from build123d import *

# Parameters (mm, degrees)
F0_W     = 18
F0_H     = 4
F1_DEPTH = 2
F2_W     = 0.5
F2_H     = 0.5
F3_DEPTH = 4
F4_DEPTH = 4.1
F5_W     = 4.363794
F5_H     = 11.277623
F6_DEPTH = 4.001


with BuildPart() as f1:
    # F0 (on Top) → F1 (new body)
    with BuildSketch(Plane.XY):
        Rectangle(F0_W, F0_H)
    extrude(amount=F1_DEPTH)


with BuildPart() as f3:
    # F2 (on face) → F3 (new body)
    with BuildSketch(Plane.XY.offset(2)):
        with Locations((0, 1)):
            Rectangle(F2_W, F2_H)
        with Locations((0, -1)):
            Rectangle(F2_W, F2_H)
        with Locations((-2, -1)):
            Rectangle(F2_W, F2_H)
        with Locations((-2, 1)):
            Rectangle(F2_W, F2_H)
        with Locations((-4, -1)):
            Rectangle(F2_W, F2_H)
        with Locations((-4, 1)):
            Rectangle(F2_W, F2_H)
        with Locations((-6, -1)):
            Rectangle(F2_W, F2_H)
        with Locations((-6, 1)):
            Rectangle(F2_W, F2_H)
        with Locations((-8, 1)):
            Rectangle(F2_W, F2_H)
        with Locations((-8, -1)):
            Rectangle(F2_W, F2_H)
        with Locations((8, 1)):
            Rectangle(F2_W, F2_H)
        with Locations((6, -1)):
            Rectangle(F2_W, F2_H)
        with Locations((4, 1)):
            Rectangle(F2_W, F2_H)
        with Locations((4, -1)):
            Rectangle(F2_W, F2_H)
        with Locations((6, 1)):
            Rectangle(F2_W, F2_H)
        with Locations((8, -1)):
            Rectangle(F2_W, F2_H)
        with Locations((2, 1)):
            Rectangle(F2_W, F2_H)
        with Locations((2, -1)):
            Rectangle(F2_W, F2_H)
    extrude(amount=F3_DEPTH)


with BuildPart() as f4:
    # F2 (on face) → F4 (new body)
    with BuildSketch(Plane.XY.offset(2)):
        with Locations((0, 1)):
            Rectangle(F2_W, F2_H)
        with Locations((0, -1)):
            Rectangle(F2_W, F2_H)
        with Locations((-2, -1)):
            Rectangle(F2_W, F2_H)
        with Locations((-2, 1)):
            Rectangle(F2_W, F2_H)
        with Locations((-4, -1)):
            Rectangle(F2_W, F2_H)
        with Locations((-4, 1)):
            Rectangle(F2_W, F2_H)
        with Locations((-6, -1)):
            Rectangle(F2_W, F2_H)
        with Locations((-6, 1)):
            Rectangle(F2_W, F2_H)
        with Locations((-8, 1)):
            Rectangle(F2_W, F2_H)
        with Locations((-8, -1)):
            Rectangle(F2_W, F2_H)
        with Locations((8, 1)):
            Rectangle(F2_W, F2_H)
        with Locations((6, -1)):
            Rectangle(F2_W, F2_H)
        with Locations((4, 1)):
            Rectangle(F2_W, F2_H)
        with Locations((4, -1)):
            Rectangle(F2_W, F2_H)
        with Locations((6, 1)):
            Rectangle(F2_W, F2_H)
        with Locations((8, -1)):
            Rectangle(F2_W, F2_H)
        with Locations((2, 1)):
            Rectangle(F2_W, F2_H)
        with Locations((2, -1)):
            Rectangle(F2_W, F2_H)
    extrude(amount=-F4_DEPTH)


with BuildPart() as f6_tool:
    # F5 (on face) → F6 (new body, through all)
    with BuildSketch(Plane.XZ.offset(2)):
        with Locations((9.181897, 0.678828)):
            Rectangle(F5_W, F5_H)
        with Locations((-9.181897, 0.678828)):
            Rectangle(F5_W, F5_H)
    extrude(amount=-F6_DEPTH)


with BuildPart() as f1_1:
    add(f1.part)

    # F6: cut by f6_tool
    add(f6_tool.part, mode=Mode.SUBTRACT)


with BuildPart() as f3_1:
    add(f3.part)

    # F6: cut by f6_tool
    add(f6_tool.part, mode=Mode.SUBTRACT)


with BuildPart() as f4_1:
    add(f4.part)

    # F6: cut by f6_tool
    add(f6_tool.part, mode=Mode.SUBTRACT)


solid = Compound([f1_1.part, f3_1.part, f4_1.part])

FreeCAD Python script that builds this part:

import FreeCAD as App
import Part
import Sketcher

doc = App.newDocument("Part")
params = doc.addObject("Spreadsheet::Sheet", "Params")
for row, (alias, value) in enumerate([
    ("sketch1_width", "18 mm"),
    ("sketch1_height", "4 mm"),
    ("pad1_length", "2 mm"),
    ("sketch2_width", "0.5 mm"),
    ("pad2_length", "4 mm"),
    ("sketch3_width", "0.5 mm"),
    ("pad3_length", "4.1 mm"),
    ("pad4_length", "4.001 mm"),
], start=1):
    params.set(f"A{row}", alias)
    params.set(f"B{row}", "=" + value)
    params.setAlias(f"B{row}", alias)

body = doc.addObject("PartDesign::Body", "Body")

# Sketch on XY plane
sketch1 = doc.addObject("Sketcher::SketchObject", "Sketch")
body.addObject(sketch1)
sketch1.AttachmentSupport = (doc.XY_Plane, [""])
sketch1.MapMode = "FlatFace"
sketch1.addGeometry([
    Part.LineSegment(App.Vector(-9, 2, 0), App.Vector(-9, -2, 0)),
    Part.LineSegment(App.Vector(-9, -2, 0), App.Vector(9, -2, 0)),
    Part.LineSegment(App.Vector(9, -2, 0), App.Vector(9, 2, 0)),
    Part.LineSegment(App.Vector(9, 2, 0), App.Vector(-9, 2, 0)),
], False)
sketch1.addConstraint([
    Sketcher.Constraint("Coincident", 0, 2, 1, 1),
    Sketcher.Constraint("Coincident", 1, 2, 2, 1),
    Sketcher.Constraint("Coincident", 2, 2, 3, 1),
    Sketcher.Constraint("Coincident", 3, 2, 0, 1),
    Sketcher.Constraint("Vertical", 0),
    Sketcher.Constraint("Horizontal", 1),
    Sketcher.Constraint("Vertical", 2),
    Sketcher.Constraint("Horizontal", 3),
    Sketcher.Constraint("Symmetric", 0, 2, 2, 2, -1, 1),
    Sketcher.Constraint("DistanceX", 1, 1, 1, 2, 18.0),
    Sketcher.Constraint("DistanceY", 0, 2, 0, 1, 4.0),
])
sketch1.setExpression("Constraints[9]", "Params.sketch1_width")
sketch1.setExpression("Constraints[10]", "Params.sketch1_height")
pad1 = doc.addObject("PartDesign::Pad", "Pad")
body.addObject(pad1)
pad1.Profile = sketch1
pad1.setExpression("Length", "Params.pad1_length")
body2 = doc.addObject("PartDesign::Body", "Body001")
body2.AllowCompound = True

# Sketch on XY plane
sketch2 = doc.addObject("Sketcher::SketchObject", "Sketch001")
body2.addObject(sketch2)
sketch2.AttachmentSupport = (doc.getObject("XY_Plane001"), [""])
sketch2.MapMode = "FlatFace"
sketch2.AttachmentOffset = App.Placement(App.Vector(0, 0, 2), App.Rotation())
sketch2.addGeometry([
    Part.LineSegment(App.Vector(-0.2, 1.2, 0), App.Vector(-0.2, 0.8, 0)),  # 0
    Part.LineSegment(App.Vector(-0.2, 0.8, 0), App.Vector(0.2, 0.8, 0)),  # 1
    Part.LineSegment(App.Vector(0.2, 0.8, 0), App.Vector(0.2, 1.2, 0)),  # 2
    Part.LineSegment(App.Vector(0.2, 1.2, 0), App.Vector(-0.2, 1.2, 0)),  # 3
    Part.LineSegment(App.Vector(-0.2, -0.8, 0), App.Vector(-0.2, -1.2, 0)),  # 4
    Part.LineSegment(App.Vector(-0.2, -1.2, 0), App.Vector(0.2, -1.2, 0)),  # 5
    Part.LineSegment(App.Vector(0.2, -1.2, 0), App.Vector(0.2, -0.8, 0)),  # 6
    Part.LineSegment(App.Vector(0.2, -0.8, 0), App.Vector(-0.2, -0.8, 0)),  # 7
    Part.LineSegment(App.Vector(-2.2, -0.8, 0), App.Vector(-2.2, -1.2, 0)),  # 8
    Part.LineSegment(App.Vector(-2.2, -1.2, 0), App.Vector(-1.8, -1.2, 0)),  # 9
    Part.LineSegment(App.Vector(-1.8, -1.2, 0), App.Vector(-1.8, -0.8, 0)),  # 10
    Part.LineSegment(App.Vector(-1.8, -0.8, 0), App.Vector(-2.2, -0.8, 0)),  # 11
    Part.LineSegment(App.Vector(-2.2, 1.2, 0), App.Vector(-2.2, 0.8, 0)),  # 12
    Part.LineSegment(App.Vector(-2.2, 0.8, 0), App.Vector(-1.8, 0.8, 0)),  # 13
    Part.LineSegment(App.Vector(-1.8, 0.8, 0), App.Vector(-1.8, 1.2, 0)),  # 14
    Part.LineSegment(App.Vector(-1.8, 1.2, 0), App.Vector(-2.2, 1.2, 0)),  # 15
    Part.LineSegment(App.Vector(-4.2, -0.8, 0), App.Vector(-4.2, -1.2, 0)),  # 16
    Part.LineSegment(App.Vector(-4.2, -1.2, 0), App.Vector(-3.8, -1.2, 0)),  # 17
    Part.LineSegment(App.Vector(-3.8, -1.2, 0), App.Vector(-3.8, -0.8, 0)),  # 18
    Part.LineSegment(App.Vector(-3.8, -0.8, 0), App.Vector(-4.2, -0.8, 0)),  # 19
    Part.LineSegment(App.Vector(-4.2, 1.2, 0), App.Vector(-4.2, 0.8, 0)),  # 20
    Part.LineSegment(App.Vector(-4.2, 0.8, 0), App.Vector(-3.8, 0.8, 0)),  # 21
    Part.LineSegment(App.Vector(-3.8, 0.8, 0), App.Vector(-3.8, 1.2, 0)),  # 22
    Part.LineSegment(App.Vector(-3.8, 1.2, 0), App.Vector(-4.2, 1.2, 0)),  # 23
    Part.LineSegment(App.Vector(-6.2, -0.8, 0), App.Vector(-6.2, -1.2, 0)),  # 24
    Part.LineSegment(App.Vector(-6.2, -1.2, 0), App.Vector(-5.8, -1.2, 0)),  # 25
    Part.LineSegment(App.Vector(-5.8, -1.2, 0), App.Vector(-5.8, -0.8, 0)),  # 26
    Part.LineSegment(App.Vector(-5.8, -0.8, 0), App.Vector(-6.2, -0.8, 0)),  # 27
    Part.LineSegment(App.Vector(-6.2, 1.2, 0), App.Vector(-6.2, 0.8, 0)),  # 28
    Part.LineSegment(App.Vector(-6.2, 0.8, 0), App.Vector(-5.8, 0.8, 0)),  # 29
    Part.LineSegment(App.Vector(-5.8, 0.8, 0), App.Vector(-5.8, 1.2, 0)),  # 30
    Part.LineSegment(App.Vector(-5.8, 1.2, 0), App.Vector(-6.2, 1.2, 0)),  # 31
    Part.LineSegment(App.Vector(-8.2, 1.2, 0), App.Vector(-8.2, 0.8, 0)),  # 32
    Part.LineSegment(App.Vector(-8.2, 0.8, 0), App.Vector(-7.8, 0.8, 0)),  # 33
    Part.LineSegment(App.Vector(-7.8, 0.8, 0), App.Vector(-7.8, 1.2, 0)),  # 34
    Part.LineSegment(App.Vector(-7.8, 1.2, 0), App.Vector(-8.2, 1.2, 0)),  # 35
    Part.LineSegment(App.Vector(-8.2, -0.8, 0), App.Vector(-8.2, -1.2, 0)),  # 36
    Part.LineSegment(App.Vector(-8.2, -1.2, 0), App.Vector(-7.8, -1.2, 0)),  # 37
    Part.LineSegment(App.Vector(-7.8, -1.2, 0), App.Vector(-7.8, -0.8, 0)),  # 38
    Part.LineSegment(App.Vector(-7.8, -0.8, 0), App.Vector(-8.2, -0.8, 0)),  # 39
    Part.LineSegment(App.Vector(7.8, 1.2, 0), App.Vector(7.8, 0.8, 0)),  # 40
    Part.LineSegment(App.Vector(7.8, 0.8, 0), App.Vector(8.2, 0.8, 0)),  # 41
    Part.LineSegment(App.Vector(8.2, 0.8, 0), App.Vector(8.2, 1.2, 0)),  # 42
    Part.LineSegment(App.Vector(8.2, 1.2, 0), App.Vector(7.8, 1.2, 0)),  # 43
    Part.LineSegment(App.Vector(5.8, -0.8, 0), App.Vector(5.8, -1.2, 0)),  # 44
    Part.LineSegment(App.Vector(5.8, -1.2, 0), App.Vector(6.2, -1.2, 0)),  # 45
    Part.LineSegment(App.Vector(6.2, -1.2, 0), App.Vector(6.2, -0.8, 0)),  # 46
    Part.LineSegment(App.Vector(6.2, -0.8, 0), App.Vector(5.8, -0.8, 0)),  # 47
    Part.LineSegment(App.Vector(3.8, 1.2, 0), App.Vector(3.8, 0.8, 0)),  # 48
    Part.LineSegment(App.Vector(3.8, 0.8, 0), App.Vector(4.2, 0.8, 0)),  # 49
    Part.LineSegment(App.Vector(4.2, 0.8, 0), App.Vector(4.2, 1.2, 0)),  # 50
    Part.LineSegment(App.Vector(4.2, 1.2, 0), App.Vector(3.8, 1.2, 0)),  # 51
    Part.LineSegment(App.Vector(3.8, -0.8, 0), App.Vector(3.8, -1.2, 0)),  # 52
    Part.LineSegment(App.Vector(3.8, -1.2, 0), App.Vector(4.2, -1.2, 0)),  # 53
    Part.LineSegment(App.Vector(4.2, -1.2, 0), App.Vector(4.2, -0.8, 0)),  # 54
    Part.LineSegment(App.Vector(4.2, -0.8, 0), App.Vector(3.8, -0.8, 0)),  # 55
    Part.LineSegment(App.Vector(5.8, 1.2, 0), App.Vector(5.8, 0.8, 0)),  # 56
    Part.LineSegment(App.Vector(5.8, 0.8, 0), App.Vector(6.2, 0.8, 0)),  # 57
    Part.LineSegment(App.Vector(6.2, 0.8, 0), App.Vector(6.2, 1.2, 0)),  # 58
    Part.LineSegment(App.Vector(6.2, 1.2, 0), App.Vector(5.8, 1.2, 0)),  # 59
    Part.LineSegment(App.Vector(7.8, -0.8, 0), App.Vector(7.8, -1.2, 0)),  # 60
    Part.LineSegment(App.Vector(7.8, -1.2, 0), App.Vector(8.2, -1.2, 0)),  # 61
    Part.LineSegment(App.Vector(8.2, -1.2, 0), App.Vector(8.2, -0.8, 0)),  # 62
    Part.LineSegment(App.Vector(8.2, -0.8, 0), App.Vector(7.8, -0.8, 0)),  # 63
    Part.LineSegment(App.Vector(1.8, 1.2, 0), App.Vector(1.8, 0.8, 0)),  # 64
    Part.LineSegment(App.Vector(1.8, 0.8, 0), App.Vector(2.2, 0.8, 0)),  # 65
    Part.LineSegment(App.Vector(2.2, 0.8, 0), App.Vector(2.2, 1.2, 0)),  # 66
    Part.LineSegment(App.Vector(2.2, 1.2, 0), App.Vector(1.8, 1.2, 0)),  # 67
    Part.LineSegment(App.Vector(1.8, -0.8, 0), App.Vector(1.8, -1.2, 0)),  # 68
    Part.LineSegment(App.Vector(1.8, -1.2, 0), App.Vector(2.2, -1.2, 0)),  # 69
    Part.LineSegment(App.Vector(2.2, -1.2, 0), App.Vector(2.2, -0.8, 0)),  # 70
    Part.LineSegment(App.Vector(2.2, -0.8, 0), App.Vector(1.8, -0.8, 0)),  # 71
], False)
sketch2.addConstraint([
    Sketcher.Constraint("Coincident", 0, 2, 1, 1),
    Sketcher.Constraint("Coincident", 1, 2, 2, 1),
    Sketcher.Constraint("Coincident", 2, 2, 3, 1),
    Sketcher.Constraint("Coincident", 3, 2, 0, 1),
    Sketcher.Constraint("Coincident", 4, 2, 5, 1),
    Sketcher.Constraint("Coincident", 5, 2, 6, 1),
    Sketcher.Constraint("Coincident", 6, 2, 7, 1),
    Sketcher.Constraint("Coincident", 7, 2, 4, 1),
    Sketcher.Constraint("Coincident", 8, 2, 9, 1),
    Sketcher.Constraint("Coincident", 9, 2, 10, 1),
    Sketcher.Constraint("Coincident", 10, 2, 11, 1),
    Sketcher.Constraint("Coincident", 11, 2, 8, 1),
    Sketcher.Constraint("Coincident", 12, 2, 13, 1),
    Sketcher.Constraint("Coincident", 13, 2, 14, 1),
    Sketcher.Constraint("Coincident", 14, 2, 15, 1),
    Sketcher.Constraint("Coincident", 15, 2, 12, 1),
    Sketcher.Constraint("Coincident", 16, 2, 17, 1),
    Sketcher.Constraint("Coincident", 17, 2, 18, 1),
    Sketcher.Constraint("Coincident", 18, 2, 19, 1),
    Sketcher.Constraint("Coincident", 19, 2, 16, 1),
    Sketcher.Constraint("Coincident", 20, 2, 21, 1),
    Sketcher.Constraint("Coincident", 21, 2, 22, 1),
    Sketcher.Constraint("Coincident", 22, 2, 23, 1),
    Sketcher.Constraint("Coincident", 23, 2, 20, 1),
    Sketcher.Constraint("Coincident", 24, 2, 25, 1),
    Sketcher.Constraint("Coincident", 25, 2, 26, 1),
    Sketcher.Constraint("Coincident", 26, 2, 27, 1),
    Sketcher.Constraint("Coincident", 27, 2, 24, 1),
    Sketcher.Constraint("Coincident", 28, 2, 29, 1),
    Sketcher.Constraint("Coincident", 29, 2, 30, 1),
    Sketcher.Constraint("Coincident", 30, 2, 31, 1),
    Sketcher.Constraint("Coincident", 31, 2, 28, 1),
    Sketcher.Constraint("Coincident", 32, 2, 33, 1),
    Sketcher.Constraint("Coincident", 33, 2, 34, 1),
    Sketcher.Constraint("Coincident", 34, 2, 35, 1),
    Sketcher.Constraint("Coincident", 35, 2, 32, 1),
    Sketcher.Constraint("Coincident", 36, 2, 37, 1),
    Sketcher.Constraint("Coincident", 37, 2, 38, 1),
    Sketcher.Constraint("Coincident", 38, 2, 39, 1),
    Sketcher.Constraint("Coincident", 39, 2, 36, 1),
    Sketcher.Constraint("Coincident", 40, 2, 41, 1),
    Sketcher.Constraint("Coincident", 41, 2, 42, 1),
    Sketcher.Constraint("Coincident", 42, 2, 43, 1),
    Sketcher.Constraint("Coincident", 43, 2, 40, 1),
    Sketcher.Constraint("Coincident", 44, 2, 45, 1),
    Sketcher.Constraint("Coincident", 45, 2, 46, 1),
    Sketcher.Constraint("Coincident", 46, 2, 47, 1),
    Sketcher.Constraint("Coincident", 47, 2, 44, 1),
    Sketcher.Constraint("Coincident", 48, 2, 49, 1),
    Sketcher.Constraint("Coincident", 49, 2, 50, 1),
    Sketcher.Constraint("Coincident", 50, 2, 51, 1),
    Sketcher.Constraint("Coincident", 51, 2, 48, 1),
    Sketcher.Constraint("Coincident", 52, 2, 53, 1),
    Sketcher.Constraint("Coincident", 53, 2, 54, 1),
    Sketcher.Constraint("Coincident", 54, 2, 55, 1),
    Sketcher.Constraint("Coincident", 55, 2, 52, 1),
    Sketcher.Constraint("Coincident", 56, 2, 57, 1),
    Sketcher.Constraint("Coincident", 57, 2, 58, 1),
    Sketcher.Constraint("Coincident", 58, 2, 59, 1),
    Sketcher.Constraint("Coincident", 59, 2, 56, 1),
    Sketcher.Constraint("Coincident", 60, 2, 61, 1),
    Sketcher.Constraint("Coincident", 61, 2, 62, 1),
    Sketcher.Constraint("Coincident", 62, 2, 63, 1),
    Sketcher.Constraint("Coincident", 63, 2, 60, 1),
    Sketcher.Constraint("Coincident", 64, 2, 65, 1),
    Sketcher.Constraint("Coincident", 65, 2, 66, 1),
    Sketcher.Constraint("Coincident", 66, 2, 67, 1),
    Sketcher.Constraint("Coincident", 67, 2, 64, 1),
    Sketcher.Constraint("Coincident", 68, 2, 69, 1),
    Sketcher.Constraint("Coincident", 69, 2, 70, 1),
    Sketcher.Constraint("Coincident", 70, 2, 71, 1),
    Sketcher.Constraint("Coincident", 71, 2, 68, 1),
    Sketcher.Constraint("Vertical", 0),
    Sketcher.Constraint("Horizontal", 1),
    Sketcher.Constraint("Vertical", 2),
    Sketcher.Constraint("Horizontal", 3),
    Sketcher.Constraint("Vertical", 4),
    Sketcher.Constraint("Horizontal", 5),
    Sketcher.Constraint("Vertical", 6),
    Sketcher.Constraint("Horizontal", 7),
    Sketcher.Constraint("Vertical", 8),
    Sketcher.Constraint("Horizontal", 9),
    Sketcher.Constraint("Vertical", 10),
    Sketcher.Constraint("Horizontal", 11),
    Sketcher.Constraint("Vertical", 12),
    Sketcher.Constraint("Horizontal", 13),
    Sketcher.Constraint("Vertical", 14),
    Sketcher.Constraint("Horizontal", 15),
    Sketcher.Constraint("Vertical", 16),
    Sketcher.Constraint("Horizontal", 17),
    Sketcher.Constraint("Vertical", 18),
    Sketcher.Constraint("Horizontal", 19),
    Sketcher.Constraint("Vertical", 20),
    Sketcher.Constraint("Horizontal", 21),
    Sketcher.Constraint("Vertical", 22),
    Sketcher.Constraint("Horizontal", 23),
    Sketcher.Constraint("Vertical", 24),
    Sketcher.Constraint("Horizontal", 25),
    Sketcher.Constraint("Vertical", 26),
    Sketcher.Constraint("Horizontal", 27),
    Sketcher.Constraint("Vertical", 28),
    Sketcher.Constraint("Horizontal", 29),
    Sketcher.Constraint("Vertical", 30),
    Sketcher.Constraint("Horizontal", 31),
    Sketcher.Constraint("Vertical", 32),
    Sketcher.Constraint("Horizontal", 33),
    Sketcher.Constraint("Vertical", 34),
    Sketcher.Constraint("Horizontal", 35),
    Sketcher.Constraint("Vertical", 36),
    Sketcher.Constraint("Horizontal", 37),
    Sketcher.Constraint("Vertical", 38),
    Sketcher.Constraint("Horizontal", 39),
    Sketcher.Constraint("Vertical", 40),
    Sketcher.Constraint("Horizontal", 41),
    Sketcher.Constraint("Vertical", 42),
    Sketcher.Constraint("Horizontal", 43),
    Sketcher.Constraint("Vertical", 44),
    Sketcher.Constraint("Horizontal", 45),
    Sketcher.Constraint("Vertical", 46),
    Sketcher.Constraint("Horizontal", 47),
    Sketcher.Constraint("Vertical", 48),
    Sketcher.Constraint("Horizontal", 49),
    Sketcher.Constraint("Vertical", 50),
    Sketcher.Constraint("Horizontal", 51),
    Sketcher.Constraint("Vertical", 52),
    Sketcher.Constraint("Horizontal", 53),
    Sketcher.Constraint("Vertical", 54),
    Sketcher.Constraint("Horizontal", 55),
    Sketcher.Constraint("Vertical", 56),
    Sketcher.Constraint("Horizontal", 57),
    Sketcher.Constraint("Vertical", 58),
    Sketcher.Constraint("Horizontal", 59),
    Sketcher.Constraint("Vertical", 60),
    Sketcher.Constraint("Horizontal", 61),
    Sketcher.Constraint("Vertical", 62),
    Sketcher.Constraint("Horizontal", 63),
    Sketcher.Constraint("Vertical", 64),
    Sketcher.Constraint("Horizontal", 65),
    Sketcher.Constraint("Vertical", 66),
    Sketcher.Constraint("Horizontal", 67),
    Sketcher.Constraint("Vertical", 68),
    Sketcher.Constraint("Horizontal", 69),
    Sketcher.Constraint("Vertical", 70),
    Sketcher.Constraint("Horizontal", 71),
    Sketcher.Constraint("Symmetric", 2, 2, 4, 2, -1, 1),
    Sketcher.Constraint("Symmetric", 0, 2, 6, 2, -1, 1),
    Sketcher.Constraint("Symmetric", 38, 2, 40, 2, -1, 1),
    Sketcher.Constraint("Symmetric", 36, 2, 42, 2, -1, 1),
    Sketcher.Constraint("Symmetric", 30, 2, 44, 2, -1, 1),
    Sketcher.Constraint("Symmetric", 28, 2, 46, 2, -1, 1),
    Sketcher.Constraint("Symmetric", 18, 2, 48, 2, -1, 1),
    Sketcher.Constraint("Symmetric", 16, 2, 50, 2, -1, 1),
    Sketcher.Constraint("Symmetric", 22, 2, 52, 2, -1, 1),
    Sketcher.Constraint("Symmetric", 20, 2, 54, 2, -1, 1),
    Sketcher.Constraint("Symmetric", 26, 2, 56, 2, -1, 1),
    Sketcher.Constraint("Symmetric", 24, 2, 58, 2, -1, 1),
    Sketcher.Constraint("Symmetric", 34, 2, 60, 2, -1, 1),
    Sketcher.Constraint("Symmetric", 32, 2, 62, 2, -1, 1),
    Sketcher.Constraint("Symmetric", 10, 2, 64, 2, -1, 1),
    Sketcher.Constraint("Symmetric", 8, 2, 66, 2, -1, 1),
    Sketcher.Constraint("Symmetric", 14, 2, 68, 2, -1, 1),
    Sketcher.Constraint("Symmetric", 12, 2, 70, 2, -1, 1),
    Sketcher.Constraint("Symmetric", 33, 2, 40, 2, -2),
    Sketcher.Constraint("Symmetric", 35, 2, 42, 2, -2),
    Sketcher.Constraint("Symmetric", 25, 2, 44, 2, -2),
    Sketcher.Constraint("Symmetric", 27, 2, 46, 2, -2),
    Sketcher.Constraint("Symmetric", 21, 2, 48, 2, -2),
    Sketcher.Constraint("Symmetric", 23, 2, 50, 2, -2),
    Sketcher.Constraint("Symmetric", 13, 2, 64, 2, -2),
    Sketcher.Constraint("Symmetric", 15, 2, 66, 2, -2),
    Sketcher.Constraint("Horizontal", 5, 2, 8, 2),
    Sketcher.Constraint("Horizontal", 7, 2, 10, 2),
    Sketcher.Constraint("Horizontal", 9, 2, 16, 2),
    Sketcher.Constraint("Horizontal", 11, 2, 18, 2),
    Sketcher.Constraint("Horizontal", 17, 2, 24, 2),
    Sketcher.Constraint("Horizontal", 19, 2, 26, 2),
    Sketcher.Constraint("Horizontal", 29, 2, 32, 2),
    Sketcher.Constraint("Horizontal", 31, 2, 34, 2),
    Sketcher.Constraint("Vertical", 3, 2, 4, 2),
    Sketcher.Constraint("Equal", 7, 9),
    Sketcher.Constraint("Equal", 15, 17),
    Sketcher.Constraint("Equal", 23, 25),
    Sketcher.Constraint("Equal", 31, 33),
    Sketcher.Constraint("Equal", 71, 0),
    Sketcher.Constraint("DistanceX", 1, 1, 1, 2, 0.5),
    Sketcher.Constraint("DistanceY", -1, 1, 0, 2, 0.75),
    Sketcher.Constraint("DistanceX", 8, 2, -1, 1, 2.25),
    Sketcher.Constraint("DistanceX", 16, 2, -1, 1, 4.25),
    Sketcher.Constraint("DistanceX", 24, 2, -1, 1, 6.25),
    Sketcher.Constraint("DistanceX", 32, 2, -1, 1, 8.25),
])
sketch2.setExpression("Constraints[184]", "Params.sketch2_width")
pad2 = doc.addObject("PartDesign::Pad", "Pad001")
body2.addObject(pad2)
pad2.Profile = sketch2
pad2.setExpression("Length", "Params.pad2_length")
body3 = doc.addObject("PartDesign::Body", "Body002")
body3.AllowCompound = True

# Sketch on XY plane
sketch3 = doc.addObject("Sketcher::SketchObject", "Sketch002")
body3.addObject(sketch3)
sketch3.AttachmentSupport = (doc.getObject("XY_Plane002"), [""])
sketch3.MapMode = "FlatFace"
sketch3.AttachmentOffset = App.Placement(App.Vector(0, 0, 2), App.Rotation())
sketch3.addGeometry([
    Part.LineSegment(App.Vector(-0.2, 1.2, 0), App.Vector(-0.2, 0.8, 0)),  # 0
    Part.LineSegment(App.Vector(-0.2, 0.8, 0), App.Vector(0.2, 0.8, 0)),  # 1
    Part.LineSegment(App.Vector(0.2, 0.8, 0), App.Vector(0.2, 1.2, 0)),  # 2
    Part.LineSegment(App.Vector(0.2, 1.2, 0), App.Vector(-0.2, 1.2, 0)),  # 3
    Part.LineSegment(App.Vector(-0.2, -0.8, 0), App.Vector(-0.2, -1.2, 0)),  # 4
    Part.LineSegment(App.Vector(-0.2, -1.2, 0), App.Vector(0.2, -1.2, 0)),  # 5
    Part.LineSegment(App.Vector(0.2, -1.2, 0), App.Vector(0.2, -0.8, 0)),  # 6
    Part.LineSegment(App.Vector(0.2, -0.8, 0), App.Vector(-0.2, -0.8, 0)),  # 7
    Part.LineSegment(App.Vector(-2.2, -0.8, 0), App.Vector(-2.2, -1.2, 0)),  # 8
    Part.LineSegment(App.Vector(-2.2, -1.2, 0), App.Vector(-1.8, -1.2, 0)),  # 9
    Part.LineSegment(App.Vector(-1.8, -1.2, 0), App.Vector(-1.8, -0.8, 0)),  # 10
    Part.LineSegment(App.Vector(-1.8, -0.8, 0), App.Vector(-2.2, -0.8, 0)),  # 11
    Part.LineSegment(App.Vector(-2.2, 1.2, 0), App.Vector(-2.2, 0.8, 0)),  # 12
    Part.LineSegment(App.Vector(-2.2, 0.8, 0), App.Vector(-1.8, 0.8, 0)),  # 13
    Part.LineSegment(App.Vector(-1.8, 0.8, 0), App.Vector(-1.8, 1.2, 0)),  # 14
    Part.LineSegment(App.Vector(-1.8, 1.2, 0), App.Vector(-2.2, 1.2, 0)),  # 15
    Part.LineSegment(App.Vector(-4.2, -0.8, 0), App.Vector(-4.2, -1.2, 0)),  # 16
    Part.LineSegment(App.Vector(-4.2, -1.2, 0), App.Vector(-3.8, -1.2, 0)),  # 17
    Part.LineSegment(App.Vector(-3.8, -1.2, 0), App.Vector(-3.8, -0.8, 0)),  # 18
    Part.LineSegment(App.Vector(-3.8, -0.8, 0), App.Vector(-4.2, -0.8, 0)),  # 19
    Part.LineSegment(App.Vector(-4.2, 1.2, 0), App.Vector(-4.2, 0.8, 0)),  # 20
    Part.LineSegment(App.Vector(-4.2, 0.8, 0), App.Vector(-3.8, 0.8, 0)),  # 21
    Part.LineSegment(App.Vector(-3.8, 0.8, 0), App.Vector(-3.8, 1.2, 0)),  # 22
    Part.LineSegment(App.Vector(-3.8, 1.2, 0), App.Vector(-4.2, 1.2, 0)),  # 23
    Part.LineSegment(App.Vector(-6.2, -0.8, 0), App.Vector(-6.2, -1.2, 0)),  # 24
    Part.LineSegment(App.Vector(-6.2, -1.2, 0), App.Vector(-5.8, -1.2, 0)),  # 25
    Part.LineSegment(App.Vector(-5.8, -1.2, 0), App.Vector(-5.8, -0.8, 0)),  # 26
    Part.LineSegment(App.Vector(-5.8, -0.8, 0), App.Vector(-6.2, -0.8, 0)),  # 27
    Part.LineSegment(App.Vector(-6.2, 1.2, 0), App.Vector(-6.2, 0.8, 0)),  # 28
    Part.LineSegment(App.Vector(-6.2, 0.8, 0), App.Vector(-5.8, 0.8, 0)),  # 29
    Part.LineSegment(App.Vector(-5.8, 0.8, 0), App.Vector(-5.8, 1.2, 0)),  # 30
    Part.LineSegment(App.Vector(-5.8, 1.2, 0), App.Vector(-6.2, 1.2, 0)),  # 31
    Part.LineSegment(App.Vector(-8.2, 1.2, 0), App.Vector(-8.2, 0.8, 0)),  # 32
    Part.LineSegment(App.Vector(-8.2, 0.8, 0), App.Vector(-7.8, 0.8, 0)),  # 33
    Part.LineSegment(App.Vector(-7.8, 0.8, 0), App.Vector(-7.8, 1.2, 0)),  # 34
    Part.LineSegment(App.Vector(-7.8, 1.2, 0), App.Vector(-8.2, 1.2, 0)),  # 35
    Part.LineSegment(App.Vector(-8.2, -0.8, 0), App.Vector(-8.2, -1.2, 0)),  # 36
    Part.LineSegment(App.Vector(-8.2, -1.2, 0), App.Vector(-7.8, -1.2, 0)),  # 37
    Part.LineSegment(App.Vector(-7.8, -1.2, 0), App.Vector(-7.8, -0.8, 0)),  # 38
    Part.LineSegment(App.Vector(-7.8, -0.8, 0), App.Vector(-8.2, -0.8, 0)),  # 39
    Part.LineSegment(App.Vector(7.8, 1.2, 0), App.Vector(7.8, 0.8, 0)),  # 40
    Part.LineSegment(App.Vector(7.8, 0.8, 0), App.Vector(8.2, 0.8, 0)),  # 41
    Part.LineSegment(App.Vector(8.2, 0.8, 0), App.Vector(8.2, 1.2, 0)),  # 42
    Part.LineSegment(App.Vector(8.2, 1.2, 0), App.Vector(7.8, 1.2, 0)),  # 43
    Part.LineSegment(App.Vector(5.8, -0.8, 0), App.Vector(5.8, -1.2, 0)),  # 44
    Part.LineSegment(App.Vector(5.8, -1.2, 0), App.Vector(6.2, -1.2, 0)),  # 45
    Part.LineSegment(App.Vector(6.2, -1.2, 0), App.Vector(6.2, -0.8, 0)),  # 46
    Part.LineSegment(App.Vector(6.2, -0.8, 0), App.Vector(5.8, -0.8, 0)),  # 47
    Part.LineSegment(App.Vector(3.8, 1.2, 0), App.Vector(3.8, 0.8, 0)),  # 48
    Part.LineSegment(App.Vector(3.8, 0.8, 0), App.Vector(4.2, 0.8, 0)),  # 49
    Part.LineSegment(App.Vector(4.2, 0.8, 0), App.Vector(4.2, 1.2, 0)),  # 50
    Part.LineSegment(App.Vector(4.2, 1.2, 0), App.Vector(3.8, 1.2, 0)),  # 51
    Part.LineSegment(App.Vector(3.8, -0.8, 0), App.Vector(3.8, -1.2, 0)),  # 52
    Part.LineSegment(App.Vector(3.8, -1.2, 0), App.Vector(4.2, -1.2, 0)),  # 53
    Part.LineSegment(App.Vector(4.2, -1.2, 0), App.Vector(4.2, -0.8, 0)),  # 54
    Part.LineSegment(App.Vector(4.2, -0.8, 0), App.Vector(3.8, -0.8, 0)),  # 55
    Part.LineSegment(App.Vector(5.8, 1.2, 0), App.Vector(5.8, 0.8, 0)),  # 56
    Part.LineSegment(App.Vector(5.8, 0.8, 0), App.Vector(6.2, 0.8, 0)),  # 57
    Part.LineSegment(App.Vector(6.2, 0.8, 0), App.Vector(6.2, 1.2, 0)),  # 58
    Part.LineSegment(App.Vector(6.2, 1.2, 0), App.Vector(5.8, 1.2, 0)),  # 59
    Part.LineSegment(App.Vector(7.8, -0.8, 0), App.Vector(7.8, -1.2, 0)),  # 60
    Part.LineSegment(App.Vector(7.8, -1.2, 0), App.Vector(8.2, -1.2, 0)),  # 61
    Part.LineSegment(App.Vector(8.2, -1.2, 0), App.Vector(8.2, -0.8, 0)),  # 62
    Part.LineSegment(App.Vector(8.2, -0.8, 0), App.Vector(7.8, -0.8, 0)),  # 63
    Part.LineSegment(App.Vector(1.8, 1.2, 0), App.Vector(1.8, 0.8, 0)),  # 64
    Part.LineSegment(App.Vector(1.8, 0.8, 0), App.Vector(2.2, 0.8, 0)),  # 65
    Part.LineSegment(App.Vector(2.2, 0.8, 0), App.Vector(2.2, 1.2, 0)),  # 66
    Part.LineSegment(App.Vector(2.2, 1.2, 0), App.Vector(1.8, 1.2, 0)),  # 67
    Part.LineSegment(App.Vector(1.8, -0.8, 0), App.Vector(1.8, -1.2, 0)),  # 68
    Part.LineSegment(App.Vector(1.8, -1.2, 0), App.Vector(2.2, -1.2, 0)),  # 69
    Part.LineSegment(App.Vector(2.2, -1.2, 0), App.Vector(2.2, -0.8, 0)),  # 70
    Part.LineSegment(App.Vector(2.2, -0.8, 0), App.Vector(1.8, -0.8, 0)),  # 71
], False)
sketch3.addConstraint([
    Sketcher.Constraint("Coincident", 0, 2, 1, 1),
    Sketcher.Constraint("Coincident", 1, 2, 2, 1),
    Sketcher.Constraint("Coincident", 2, 2, 3, 1),
    Sketcher.Constraint("Coincident", 3, 2, 0, 1),
    Sketcher.Constraint("Coincident", 4, 2, 5, 1),
    Sketcher.Constraint("Coincident", 5, 2, 6, 1),
    Sketcher.Constraint("Coincident", 6, 2, 7, 1),
    Sketcher.Constraint("Coincident", 7, 2, 4, 1),
    Sketcher.Constraint("Coincident", 8, 2, 9, 1),
    Sketcher.Constraint("Coincident", 9, 2, 10, 1),
    Sketcher.Constraint("Coincident", 10, 2, 11, 1),
    Sketcher.Constraint("Coincident", 11, 2, 8, 1),
    Sketcher.Constraint("Coincident", 12, 2, 13, 1),
    Sketcher.Constraint("Coincident", 13, 2, 14, 1),
    Sketcher.Constraint("Coincident", 14, 2, 15, 1),
    Sketcher.Constraint("Coincident", 15, 2, 12, 1),
    Sketcher.Constraint("Coincident", 16, 2, 17, 1),
    Sketcher.Constraint("Coincident", 17, 2, 18, 1),
    Sketcher.Constraint("Coincident", 18, 2, 19, 1),
    Sketcher.Constraint("Coincident", 19, 2, 16, 1),
    Sketcher.Constraint("Coincident", 20, 2, 21, 1),
    Sketcher.Constraint("Coincident", 21, 2, 22, 1),
    Sketcher.Constraint("Coincident", 22, 2, 23, 1),
    Sketcher.Constraint("Coincident", 23, 2, 20, 1),
    Sketcher.Constraint("Coincident", 24, 2, 25, 1),
    Sketcher.Constraint("Coincident", 25, 2, 26, 1),
    Sketcher.Constraint("Coincident", 26, 2, 27, 1),
    Sketcher.Constraint("Coincident", 27, 2, 24, 1),
    Sketcher.Constraint("Coincident", 28, 2, 29, 1),
    Sketcher.Constraint("Coincident", 29, 2, 30, 1),
    Sketcher.Constraint("Coincident", 30, 2, 31, 1),
    Sketcher.Constraint("Coincident", 31, 2, 28, 1),
    Sketcher.Constraint("Coincident", 32, 2, 33, 1),
    Sketcher.Constraint("Coincident", 33, 2, 34, 1),
    Sketcher.Constraint("Coincident", 34, 2, 35, 1),
    Sketcher.Constraint("Coincident", 35, 2, 32, 1),
    Sketcher.Constraint("Coincident", 36, 2, 37, 1),
    Sketcher.Constraint("Coincident", 37, 2, 38, 1),
    Sketcher.Constraint("Coincident", 38, 2, 39, 1),
    Sketcher.Constraint("Coincident", 39, 2, 36, 1),
    Sketcher.Constraint("Coincident", 40, 2, 41, 1),
    Sketcher.Constraint("Coincident", 41, 2, 42, 1),
    Sketcher.Constraint("Coincident", 42, 2, 43, 1),
    Sketcher.Constraint("Coincident", 43, 2, 40, 1),
    Sketcher.Constraint("Coincident", 44, 2, 45, 1),
    Sketcher.Constraint("Coincident", 45, 2, 46, 1),
    Sketcher.Constraint("Coincident", 46, 2, 47, 1),
    Sketcher.Constraint("Coincident", 47, 2, 44, 1),
    Sketcher.Constraint("Coincident", 48, 2, 49, 1),
    Sketcher.Constraint("Coincident", 49, 2, 50, 1),
    Sketcher.Constraint("Coincident", 50, 2, 51, 1),
    Sketcher.Constraint("Coincident", 51, 2, 48, 1),
    Sketcher.Constraint("Coincident", 52, 2, 53, 1),
    Sketcher.Constraint("Coincident", 53, 2, 54, 1),
    Sketcher.Constraint("Coincident", 54, 2, 55, 1),
    Sketcher.Constraint("Coincident", 55, 2, 52, 1),
    Sketcher.Constraint("Coincident", 56, 2, 57, 1),
    Sketcher.Constraint("Coincident", 57, 2, 58, 1),
    Sketcher.Constraint("Coincident", 58, 2, 59, 1),
    Sketcher.Constraint("Coincident", 59, 2, 56, 1),
    Sketcher.Constraint("Coincident", 60, 2, 61, 1),
    Sketcher.Constraint("Coincident", 61, 2, 62, 1),
    Sketcher.Constraint("Coincident", 62, 2, 63, 1),
    Sketcher.Constraint("Coincident", 63, 2, 60, 1),
    Sketcher.Constraint("Coincident", 64, 2, 65, 1),
    Sketcher.Constraint("Coincident", 65, 2, 66, 1),
    Sketcher.Constraint("Coincident", 66, 2, 67, 1),
    Sketcher.Constraint("Coincident", 67, 2, 64, 1),
    Sketcher.Constraint("Coincident", 68, 2, 69, 1),
    Sketcher.Constraint("Coincident", 69, 2, 70, 1),
    Sketcher.Constraint("Coincident", 70, 2, 71, 1),
    Sketcher.Constraint("Coincident", 71, 2, 68, 1),
    Sketcher.Constraint("Vertical", 0),
    Sketcher.Constraint("Horizontal", 1),
    Sketcher.Constraint("Vertical", 2),
    Sketcher.Constraint("Horizontal", 3),
    Sketcher.Constraint("Vertical", 4),
    Sketcher.Constraint("Horizontal", 5),
    Sketcher.Constraint("Vertical", 6),
    Sketcher.Constraint("Horizontal", 7),
    Sketcher.Constraint("Vertical", 8),
    Sketcher.Constraint("Horizontal", 9),
    Sketcher.Constraint("Vertical", 10),
    Sketcher.Constraint("Horizontal", 11),
    Sketcher.Constraint("Vertical", 12),
    Sketcher.Constraint("Horizontal", 13),
    Sketcher.Constraint("Vertical", 14),
    Sketcher.Constraint("Horizontal", 15),
    Sketcher.Constraint("Vertical", 16),
    Sketcher.Constraint("Horizontal", 17),
    Sketcher.Constraint("Vertical", 18),
    Sketcher.Constraint("Horizontal", 19),
    Sketcher.Constraint("Vertical", 20),
    Sketcher.Constraint("Horizontal", 21),
    Sketcher.Constraint("Vertical", 22),
    Sketcher.Constraint("Horizontal", 23),
    Sketcher.Constraint("Vertical", 24),
    Sketcher.Constraint("Horizontal", 25),
    Sketcher.Constraint("Vertical", 26),
    Sketcher.Constraint("Horizontal", 27),
    Sketcher.Constraint("Vertical", 28),
    Sketcher.Constraint("Horizontal", 29),
    Sketcher.Constraint("Vertical", 30),
    Sketcher.Constraint("Horizontal", 31),
    Sketcher.Constraint("Vertical", 32),
    Sketcher.Constraint("Horizontal", 33),
    Sketcher.Constraint("Vertical", 34),
    Sketcher.Constraint("Horizontal", 35),
    Sketcher.Constraint("Vertical", 36),
    Sketcher.Constraint("Horizontal", 37),
    Sketcher.Constraint("Vertical", 38),
    Sketcher.Constraint("Horizontal", 39),
    Sketcher.Constraint("Vertical", 40),
    Sketcher.Constraint("Horizontal", 41),
    Sketcher.Constraint("Vertical", 42),
    Sketcher.Constraint("Horizontal", 43),
    Sketcher.Constraint("Vertical", 44),
    Sketcher.Constraint("Horizontal", 45),
    Sketcher.Constraint("Vertical", 46),
    Sketcher.Constraint("Horizontal", 47),
    Sketcher.Constraint("Vertical", 48),
    Sketcher.Constraint("Horizontal", 49),
    Sketcher.Constraint("Vertical", 50),
    Sketcher.Constraint("Horizontal", 51),
    Sketcher.Constraint("Vertical", 52),
    Sketcher.Constraint("Horizontal", 53),
    Sketcher.Constraint("Vertical", 54),
    Sketcher.Constraint("Horizontal", 55),
    Sketcher.Constraint("Vertical", 56),
    Sketcher.Constraint("Horizontal", 57),
    Sketcher.Constraint("Vertical", 58),
    Sketcher.Constraint("Horizontal", 59),
    Sketcher.Constraint("Vertical", 60),
    Sketcher.Constraint("Horizontal", 61),
    Sketcher.Constraint("Vertical", 62),
    Sketcher.Constraint("Horizontal", 63),
    Sketcher.Constraint("Vertical", 64),
    Sketcher.Constraint("Horizontal", 65),
    Sketcher.Constraint("Vertical", 66),
    Sketcher.Constraint("Horizontal", 67),
    Sketcher.Constraint("Vertical", 68),
    Sketcher.Constraint("Horizontal", 69),
    Sketcher.Constraint("Vertical", 70),
    Sketcher.Constraint("Horizontal", 71),
    Sketcher.Constraint("Symmetric", 2, 2, 4, 2, -1, 1),
    Sketcher.Constraint("Symmetric", 0, 2, 6, 2, -1, 1),
    Sketcher.Constraint("Symmetric", 38, 2, 40, 2, -1, 1),
    Sketcher.Constraint("Symmetric", 36, 2, 42, 2, -1, 1),
    Sketcher.Constraint("Symmetric", 30, 2, 44, 2, -1, 1),
    Sketcher.Constraint("Symmetric", 28, 2, 46, 2, -1, 1),
    Sketcher.Constraint("Symmetric", 18, 2, 48, 2, -1, 1),
    Sketcher.Constraint("Symmetric", 16, 2, 50, 2, -1, 1),
    Sketcher.Constraint("Symmetric", 22, 2, 52, 2, -1, 1),
    Sketcher.Constraint("Symmetric", 20, 2, 54, 2, -1, 1),
    Sketcher.Constraint("Symmetric", 26, 2, 56, 2, -1, 1),
    Sketcher.Constraint("Symmetric", 24, 2, 58, 2, -1, 1),
    Sketcher.Constraint("Symmetric", 34, 2, 60, 2, -1, 1),
    Sketcher.Constraint("Symmetric", 32, 2, 62, 2, -1, 1),
    Sketcher.Constraint("Symmetric", 10, 2, 64, 2, -1, 1),
    Sketcher.Constraint("Symmetric", 8, 2, 66, 2, -1, 1),
    Sketcher.Constraint("Symmetric", 14, 2, 68, 2, -1, 1),
    Sketcher.Constraint("Symmetric", 12, 2, 70, 2, -1, 1),
    Sketcher.Constraint("Symmetric", 33, 2, 40, 2, -2),
    Sketcher.Constraint("Symmetric", 35, 2, 42, 2, -2),
    Sketcher.Constraint("Symmetric", 25, 2, 44, 2, -2),
    Sketcher.Constraint("Symmetric", 27, 2, 46, 2, -2),
    Sketcher.Constraint("Symmetric", 21, 2, 48, 2, -2),
    Sketcher.Constraint("Symmetric", 23, 2, 50, 2, -2),
    Sketcher.Constraint("Symmetric", 13, 2, 64, 2, -2),
    Sketcher.Constraint("Symmetric", 15, 2, 66, 2, -2),
    Sketcher.Constraint("Horizontal", 5, 2, 8, 2),
    Sketcher.Constraint("Horizontal", 7, 2, 10, 2),
    Sketcher.Constraint("Horizontal", 9, 2, 16, 2),
    Sketcher.Constraint("Horizontal", 11, 2, 18, 2),
    Sketcher.Constraint("Horizontal", 17, 2, 24, 2),
    Sketcher.Constraint("Horizontal", 19, 2, 26, 2),
    Sketcher.Constraint("Horizontal", 29, 2, 32, 2),
    Sketcher.Constraint("Horizontal", 31, 2, 34, 2),
    Sketcher.Constraint("Vertical", 3, 2, 4, 2),
    Sketcher.Constraint("Equal", 7, 9),
    Sketcher.Constraint("Equal", 15, 17),
    Sketcher.Constraint("Equal", 23, 25),
    Sketcher.Constraint("Equal", 31, 33),
    Sketcher.Constraint("Equal", 71, 0),
    Sketcher.Constraint("DistanceX", 1, 1, 1, 2, 0.5),
    Sketcher.Constraint("DistanceY", -1, 1, 0, 2, 0.75),
    Sketcher.Constraint("DistanceX", 8, 2, -1, 1, 2.25),
    Sketcher.Constraint("DistanceX", 16, 2, -1, 1, 4.25),
    Sketcher.Constraint("DistanceX", 24, 2, -1, 1, 6.25),
    Sketcher.Constraint("DistanceX", 32, 2, -1, 1, 8.25),
])
sketch3.setExpression("Constraints[184]", "Params.sketch3_width")
pad3 = doc.addObject("PartDesign::Pad", "Pad002")
body3.addObject(pad3)
pad3.Profile = sketch3
pad3.setExpression("Length", "Params.pad3_length")
pad3.Reversed = True
body4 = doc.addObject("PartDesign::Body", "Body003")
body4.AllowCompound = True

# Sketch on XZ plane
sketch4 = doc.addObject("Sketcher::SketchObject", "Sketch003")
body4.addObject(sketch4)
sketch4.AttachmentSupport = (doc.getObject("XZ_Plane003"), [""])
sketch4.MapMode = "FlatFace"
sketch4.AttachmentOffset = App.Placement(App.Vector(0, 0, 2), App.Rotation())
sketch4.addGeometry([
    Part.LineSegment(App.Vector(7, 6.3, 0), App.Vector(7, -5, 0)),  # 0
    Part.LineSegment(App.Vector(7, -5, 0), App.Vector(11.4, -5, 0)),  # 1
    Part.LineSegment(App.Vector(11.4, -5, 0), App.Vector(11.4, 6.3, 0)),  # 2
    Part.LineSegment(App.Vector(11.4, 6.3, 0), App.Vector(7, 6.3, 0)),  # 3
    Part.LineSegment(App.Vector(-11.4, 6.3, 0), App.Vector(-11.4, -5, 0)),  # 4
    Part.LineSegment(App.Vector(-11.4, -5, 0), App.Vector(-7, -5, 0)),  # 5
    Part.LineSegment(App.Vector(-7, -5, 0), App.Vector(-7, 6.3, 0)),  # 6
    Part.LineSegment(App.Vector(-7, 6.3, 0), App.Vector(-11.4, 6.3, 0)),  # 7
], False)
sketch4.addConstraint([
    Sketcher.Constraint("Coincident", 0, 2, 1, 1),
    Sketcher.Constraint("Coincident", 1, 2, 2, 1),
    Sketcher.Constraint("Coincident", 2, 2, 3, 1),
    Sketcher.Constraint("Coincident", 3, 2, 0, 1),
    Sketcher.Constraint("Coincident", 4, 2, 5, 1),
    Sketcher.Constraint("Coincident", 5, 2, 6, 1),
    Sketcher.Constraint("Coincident", 6, 2, 7, 1),
    Sketcher.Constraint("Coincident", 7, 2, 4, 1),
    Sketcher.Constraint("Vertical", 0),
    Sketcher.Constraint("Horizontal", 1),
    Sketcher.Constraint("Vertical", 2),
    Sketcher.Constraint("Horizontal", 3),
    Sketcher.Constraint("Vertical", 4),
    Sketcher.Constraint("Horizontal", 5),
    Sketcher.Constraint("Vertical", 6),
    Sketcher.Constraint("Horizontal", 7),
    Sketcher.Constraint("Symmetric", 1, 2, 4, 2, -2),
    Sketcher.Constraint("Symmetric", 3, 2, 6, 2, -2),
    Sketcher.Constraint("DistanceX", -1, 1, 0, 2, 7.0),
    Sketcher.Constraint("DistanceX", 1, 1, 1, 2, 4.363794),
    Sketcher.Constraint("DistanceY", 0, 2, 0, 1, 11.277623),
    Sketcher.Constraint("DistanceY", -1, 1, 2, 2, 6.31764),
])
pad4 = doc.addObject("PartDesign::Pad", "Pad003")
body4.addObject(pad4)
pad4.Profile = sketch4
pad4.setExpression("Length", "Params.pad4_length")
pad4.Reversed = True
doc.recompute()

body5 = doc.addObject("PartDesign::Body", "Body004")
body5.BaseFeature = body4
boolean = doc.addObject("PartDesign::Boolean", "Boolean")
body.addObject(boolean)
boolean.Type = "Cut"
boolean.addObjects([body5])
doc.recompute()
body2.AllowCompound = True
doc.recompute()

body6 = doc.addObject("PartDesign::Body", "Body005")
body6.BaseFeature = body4
boolean2 = doc.addObject("PartDesign::Boolean", "Boolean001")
body2.addObject(boolean2)
boolean2.Type = "Cut"
boolean2.addObjects([body6])
doc.recompute()
body3.AllowCompound = True
doc.recompute()

boolean3 = doc.addObject("PartDesign::Boolean", "Boolean002")
body3.addObject(boolean3)
boolean3.Type = "Cut"
boolean3.addObjects([body4])

doc.recompute()
